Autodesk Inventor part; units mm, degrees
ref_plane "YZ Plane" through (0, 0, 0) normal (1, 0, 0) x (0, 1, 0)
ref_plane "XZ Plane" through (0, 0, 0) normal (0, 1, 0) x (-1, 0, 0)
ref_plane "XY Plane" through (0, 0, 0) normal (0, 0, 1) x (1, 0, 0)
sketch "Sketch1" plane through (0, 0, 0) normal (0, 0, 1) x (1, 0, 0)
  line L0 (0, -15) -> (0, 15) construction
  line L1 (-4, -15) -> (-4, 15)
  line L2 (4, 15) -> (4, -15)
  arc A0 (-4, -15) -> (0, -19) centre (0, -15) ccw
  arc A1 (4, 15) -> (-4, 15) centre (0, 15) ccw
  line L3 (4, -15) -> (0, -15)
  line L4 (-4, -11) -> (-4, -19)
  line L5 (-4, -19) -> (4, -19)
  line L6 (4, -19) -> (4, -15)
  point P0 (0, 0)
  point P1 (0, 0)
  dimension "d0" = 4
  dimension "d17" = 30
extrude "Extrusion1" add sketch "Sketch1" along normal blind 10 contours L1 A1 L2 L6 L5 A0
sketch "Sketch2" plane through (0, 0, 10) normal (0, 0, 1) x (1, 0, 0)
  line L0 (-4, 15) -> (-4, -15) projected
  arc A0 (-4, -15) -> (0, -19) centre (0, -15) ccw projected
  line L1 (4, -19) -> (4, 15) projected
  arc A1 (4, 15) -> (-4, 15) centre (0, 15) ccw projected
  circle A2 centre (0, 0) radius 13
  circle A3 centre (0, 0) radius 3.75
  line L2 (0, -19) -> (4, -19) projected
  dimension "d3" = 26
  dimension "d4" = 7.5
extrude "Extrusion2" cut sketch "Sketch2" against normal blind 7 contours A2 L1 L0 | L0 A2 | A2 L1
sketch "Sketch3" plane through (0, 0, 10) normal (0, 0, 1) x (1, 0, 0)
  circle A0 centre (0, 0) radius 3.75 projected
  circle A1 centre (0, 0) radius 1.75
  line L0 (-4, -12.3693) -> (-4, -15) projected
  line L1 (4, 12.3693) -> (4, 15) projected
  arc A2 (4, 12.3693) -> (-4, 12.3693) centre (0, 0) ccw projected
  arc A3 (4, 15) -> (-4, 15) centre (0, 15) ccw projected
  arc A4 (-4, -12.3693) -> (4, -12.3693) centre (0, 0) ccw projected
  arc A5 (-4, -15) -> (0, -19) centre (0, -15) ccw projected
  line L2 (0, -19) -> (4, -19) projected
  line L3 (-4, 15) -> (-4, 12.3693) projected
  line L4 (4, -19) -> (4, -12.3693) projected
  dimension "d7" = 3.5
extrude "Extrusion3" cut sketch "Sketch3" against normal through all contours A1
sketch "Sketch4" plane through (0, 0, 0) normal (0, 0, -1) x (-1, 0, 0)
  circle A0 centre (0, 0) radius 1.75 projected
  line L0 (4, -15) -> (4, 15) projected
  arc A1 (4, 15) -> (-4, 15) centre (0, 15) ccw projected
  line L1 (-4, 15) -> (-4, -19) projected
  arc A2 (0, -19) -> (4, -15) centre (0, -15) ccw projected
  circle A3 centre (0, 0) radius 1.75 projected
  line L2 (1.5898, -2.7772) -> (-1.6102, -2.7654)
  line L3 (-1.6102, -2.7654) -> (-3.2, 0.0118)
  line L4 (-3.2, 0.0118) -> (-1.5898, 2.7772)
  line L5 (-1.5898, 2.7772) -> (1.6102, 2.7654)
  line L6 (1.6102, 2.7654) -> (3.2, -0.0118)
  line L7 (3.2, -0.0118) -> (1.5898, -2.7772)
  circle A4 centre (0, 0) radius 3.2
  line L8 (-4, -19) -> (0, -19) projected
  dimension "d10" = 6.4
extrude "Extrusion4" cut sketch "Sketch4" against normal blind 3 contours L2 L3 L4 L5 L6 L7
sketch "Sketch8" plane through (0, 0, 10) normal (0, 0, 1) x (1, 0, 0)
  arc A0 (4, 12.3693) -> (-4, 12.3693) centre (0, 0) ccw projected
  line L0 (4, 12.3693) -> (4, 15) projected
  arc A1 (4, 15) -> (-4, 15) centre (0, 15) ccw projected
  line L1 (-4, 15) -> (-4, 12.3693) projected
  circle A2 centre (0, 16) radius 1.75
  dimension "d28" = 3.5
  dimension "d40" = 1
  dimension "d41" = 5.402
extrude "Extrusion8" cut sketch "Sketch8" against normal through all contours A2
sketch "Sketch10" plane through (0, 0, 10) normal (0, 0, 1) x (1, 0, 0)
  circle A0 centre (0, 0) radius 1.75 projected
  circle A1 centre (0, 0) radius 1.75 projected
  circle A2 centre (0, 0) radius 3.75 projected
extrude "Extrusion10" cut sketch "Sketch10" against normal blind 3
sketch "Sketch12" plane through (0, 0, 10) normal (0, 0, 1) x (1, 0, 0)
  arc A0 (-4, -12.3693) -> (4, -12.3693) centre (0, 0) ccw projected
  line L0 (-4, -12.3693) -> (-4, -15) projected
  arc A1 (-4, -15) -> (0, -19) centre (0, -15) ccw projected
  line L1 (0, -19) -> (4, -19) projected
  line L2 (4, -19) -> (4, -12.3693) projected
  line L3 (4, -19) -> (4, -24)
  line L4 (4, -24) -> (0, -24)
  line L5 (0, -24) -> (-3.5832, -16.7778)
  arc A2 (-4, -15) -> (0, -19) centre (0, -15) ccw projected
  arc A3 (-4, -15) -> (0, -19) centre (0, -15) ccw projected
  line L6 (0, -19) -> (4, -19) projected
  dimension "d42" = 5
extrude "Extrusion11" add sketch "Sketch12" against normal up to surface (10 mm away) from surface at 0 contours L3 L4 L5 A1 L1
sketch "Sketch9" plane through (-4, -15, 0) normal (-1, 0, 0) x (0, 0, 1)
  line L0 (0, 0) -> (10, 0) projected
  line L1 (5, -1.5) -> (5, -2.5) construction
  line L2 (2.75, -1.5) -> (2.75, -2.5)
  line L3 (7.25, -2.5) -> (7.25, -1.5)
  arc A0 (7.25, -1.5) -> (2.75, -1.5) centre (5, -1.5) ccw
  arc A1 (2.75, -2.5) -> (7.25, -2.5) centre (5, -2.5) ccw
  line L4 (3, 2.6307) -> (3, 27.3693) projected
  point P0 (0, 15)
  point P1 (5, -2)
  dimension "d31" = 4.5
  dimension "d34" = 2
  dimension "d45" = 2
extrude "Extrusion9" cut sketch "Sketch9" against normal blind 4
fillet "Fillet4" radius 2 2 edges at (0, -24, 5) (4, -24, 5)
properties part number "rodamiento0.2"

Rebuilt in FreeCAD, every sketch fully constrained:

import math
import FreeCAD as App
import Part
import Sketcher
Q = App.Units.Quantity


def edges_at(feature, points):
    """Names of the edges that pass closest to the given points."""
    edges = feature.Shape.Edges
    near = lambda p: min(range(len(edges)), key=lambda i: edges[i].distToShape(Part.Vertex(*p))[0])
    return sorted({f"Edge{near(p) + 1}" for p in points})


def add_polygon(sketch, points):
    """Adds a closed chain of lines whose ends are joined by coincident constraints."""
    first, n = sketch.GeometryCount, len(points)
    for a, b in zip(points, points[1:] + points[:1]):
        sketch.addGeometry(Part.LineSegment(App.Vector(*a, 0), App.Vector(*b, 0)), False)
    for i in range(n):
        sketch.addConstraint(Sketcher.Constraint("Coincident", first + i, 2, first + (i + 1) % n, 1))

doc = App.newDocument("Part")
body = doc.addObject("PartDesign::Body", "Body")

# Sketch on XY plane
sketch1 = doc.addObject("Sketcher::SketchObject", "Sketch")
body.addObject(sketch1)
sketch1.AttachmentSupport = (doc.XY_Plane, [""])
sketch1.MapMode = "FlatFace"
sketch1.addGeometry(Part.LineSegment(App.Vector(-4, 15, 0), App.Vector(-4, -15, 0)), False)
sketch1.addGeometry(Part.ArcOfCircle(Part.Circle(App.Vector(0, -15, 0), App.Vector(0, 0, 1), 4), math.radians(180), math.radians(270)), False)
sketch1.addGeometry(Part.LineSegment(App.Vector(0, -19, 0), App.Vector(4, -19, 0)), False)
sketch1.addGeometry(Part.LineSegment(App.Vector(4, -19, 0), App.Vector(4, 15, 0)), False)
sketch1.addGeometry(Part.ArcOfCircle(Part.Circle(App.Vector(0, 15, 0), App.Vector(0, 0, 1), 4), math.radians(0), math.radians(180)), False)
sketch1.addConstraint(Sketcher.Constraint("Tangent", 0, 2, 1, 1))
sketch1.addConstraint(Sketcher.Constraint("Tangent", 1, 2, 2, 1))
sketch1.addConstraint(Sketcher.Constraint("Coincident", 2, 2, 3, 1))
sketch1.addConstraint(Sketcher.Constraint("Tangent", 3, 2, 4, 1))
sketch1.addConstraint(Sketcher.Constraint("Tangent", 4, 2, 0, 1))
sketch1.addConstraint(Sketcher.Constraint("Vertical", 0))
sketch1.addConstraint(Sketcher.Constraint("Horizontal", 2))
sketch1.addConstraint(Sketcher.Constraint("Vertical", 3))
sketch1.addConstraint(Sketcher.Constraint("Equal", 1, 4))
sketch1.addConstraint(Sketcher.Constraint("Symmetric", 1, 3, 4, 3, -1, 1))
sketch1.addConstraint(Sketcher.Constraint("Radius", 1, 4.0))
sketch1.addConstraint(Sketcher.Constraint("DistanceY", 0, 2, 0, 1, 30.0))
pad1 = doc.addObject("PartDesign::Pad", "Pad")
body.addObject(pad1)
pad1.Profile = sketch1
pad1.Length = 10

# Sketch on XY plane
sketch2 = doc.addObject("Sketcher::SketchObject", "Sketch001")
body.addObject(sketch2)
sketch2.AttachmentSupport = (doc.XY_Plane, [""])
sketch2.MapMode = "FlatFace"
sketch2.AttachmentOffset = App.Placement(App.Vector(0, 0, 10), App.Rotation())
sketch2.addGeometry(Part.Circle(App.Vector(0, 0, 0), App.Vector(0, 0, 1), 13), False)
sketch2.addGeometry(Part.Circle(App.Vector(0, 0, 0), App.Vector(0, 0, 1), 3.75), False)
sketch2.addConstraint(Sketcher.Constraint("Coincident", 0, 3, -1, 1))
sketch2.addConstraint(Sketcher.Constraint("Coincident", 1, 3, -1, 1))
sketch2.addConstraint(Sketcher.Constraint("Diameter", 0, 26.0))
sketch2.addConstraint(Sketcher.Constraint("Diameter", 1, 7.5))
pocket1 = doc.addObject("PartDesign::Pocket", "Pocket")
body.addObject(pocket1)
pocket1.Profile = sketch2
pocket1.Length = 7

# Sketch on XY plane
sketch3 = doc.addObject("Sketcher::SketchObject", "Sketch002")
body.addObject(sketch3)
sketch3.AttachmentSupport = (doc.XY_Plane, [""])
sketch3.MapMode = "FlatFace"
sketch3.AttachmentOffset = App.Placement(App.Vector(0, 0, 10), App.Rotation())
sketch3.addGeometry(Part.Circle(App.Vector(0, 0, 0), App.Vector(0, 0, 1), 1.75), False)
sketch3.addConstraint(Sketcher.Constraint("Coincident", 0, 3, -1, 1))
sketch3.addConstraint(Sketcher.Constraint("Diameter", 0, 3.5))
pocket2 = doc.addObject("PartDesign::Pocket", "Pocket001")
body.addObject(pocket2)
pocket2.Profile = sketch3
pocket2.Type = "ThroughAll"

# Sketch on XY plane
sketch4 = doc.addObject("Sketcher::SketchObject", "Sketch003")
body.addObject(sketch4)
sketch4.AttachmentSupport = (doc.XY_Plane, [""])
sketch4.MapMode = "FlatFace"
add_polygon(sketch4, [(1.6102, -2.7654), (-1.5898, -2.7772), (-3.2, -0.0118), (-1.6102, 2.7654), (1.5898, 2.7772), (3.2, 0.0118)])  # lines 0-5
sketch4.addGeometry(Part.Circle(App.Vector(0, 0, 0), App.Vector(0, 0, 1), 1.75), False)  # 6
sketch4.addConstraint(Sketcher.Constraint("Coincident", 6, 3, -1, 1))
sketch4.addConstraint(Sketcher.Constraint("Symmetric", 0, 2, 3, 2, -1, 1))
sketch4.addConstraint(Sketcher.Constraint("Symmetric", 1, 2, 4, 2, -1, 1))
sketch4.addConstraint(Sketcher.Constraint("Symmetric", 2, 2, 5, 2, -1, 1))
sketch4.addConstraint(Sketcher.Constraint("Equal", 0, 1))
sketch4.addConstraint(Sketcher.Constraint("Equal", 1, 2))
sketch4.addConstraint(Sketcher.Constraint("Diameter", 6, 3.5))
sketch4.addConstraint(Sketcher.Constraint("DistanceX", 1, 2, 4, 2, 6.4))
sketch4.addConstraint(Sketcher.Constraint("Distance", 0, 3.2))
sketch4.addConstraint(Sketcher.Constraint("Angle", 1, Q("120.2108 deg")))
sketch4.addConstraint(Sketcher.Constraint("DistanceY", 1, 2, 3, 2, 2.789))
pocket3 = doc.addObject("PartDesign::Pocket", "Pocket002")
body.addObject(pocket3)
pocket3.Profile = sketch4
pocket3.Length = 3
pocket3.Reversed = True

# Sketch on XY plane
sketch5 = doc.addObject("Sketcher::SketchObject", "Sketch004")
body.addObject(sketch5)
sketch5.AttachmentSupport = (doc.XY_Plane, [""])
sketch5.MapMode = "FlatFace"
sketch5.AttachmentOffset = App.Placement(App.Vector(0, 0, 10), App.Rotation())
sketch5.addGeometry(Part.Circle(App.Vector(0, 16, 0), App.Vector(0, 0, 1), 1.75), False)
sketch5.addConstraint(Sketcher.Constraint("PointOnObject", 0, 3, -2))
sketch5.addConstraint(Sketcher.Constraint("Diameter", 0, 3.5))
sketch5.addConstraint(Sketcher.Constraint("DistanceY", -1, 1, 0, 3, 16.0))
pocket4 = doc.addObject("PartDesign::Pocket", "Pocket003")
body.addObject(pocket4)
pocket4.Profile = sketch5
pocket4.Type = "ThroughAll"

# Sketch on XY plane
sketch6 = doc.addObject("Sketcher::SketchObject", "Sketch005")
body.addObject(sketch6)
sketch6.AttachmentSupport = (doc.XY_Plane, [""])
sketch6.MapMode = "FlatFace"
sketch6.AttachmentOffset = App.Placement(App.Vector(0, 0, 10), App.Rotation())
sketch6.addGeometry(Part.Circle(App.Vector(0, 0, 0), App.Vector(0, 0, 1), 3.75), False)
sketch6.addGeometry(Part.Circle(App.Vector(0, 0, 0), App.Vector(0, 0, 1), 1.75), False)
sketch6.addConstraint(Sketcher.Constraint("Coincident", 0, 3, -1, 1))
sketch6.addConstraint(Sketcher.Constraint("Coincident", 1, 3, -1, 1))
sketch6.addConstraint(Sketcher.Constraint("Diameter", 0, 7.5))
sketch6.addConstraint(Sketcher.Constraint("Diameter", 1, 3.5))
pocket5 = doc.addObject("PartDesign::Pocket", "Pocket004")
body.addObject(pocket5)
pocket5.Profile = sketch6
pocket5.Length = 3

# Sketch on XY plane
sketch7 = doc.addObject("Sketcher::SketchObject", "Sketch006")
body.addObject(sketch7)
sketch7.AttachmentSupport = (doc.XY_Plane, [""])
sketch7.MapMode = "FlatFace"
sketch7.AttachmentOffset = App.Placement(App.Vector(0, 0, 10), App.Rotation())
sketch7.addGeometry(Part.LineSegment(App.Vector(4, -24, 0), App.Vector(4, -19, 0)), False)
sketch7.addGeometry(Part.LineSegment(App.Vector(4, -19, 0), App.Vector(0, -19, 0)), False)
sketch7.addGeometry(Part.ArcOfCircle(Part.Circle(App.Vector(0, -15, 0), App.Vector(0, 0, 1), 4), math.radians(-153.611751), math.radians(-90)), False)
sketch7.addGeometry(Part.LineSegment(App.Vector(-3.5832, -16.7778, 0), App.Vector(0, -24, 0)), False)
sketch7.addGeometry(Part.LineSegment(App.Vector(0, -24, 0), App.Vector(4, -24, 0)), False)
sketch7.addConstraint(Sketcher.Constraint("Coincident", 0, 2, 1, 1))
sketch7.addConstraint(Sketcher.Constraint("Tangent", 1, 2, 2, 2))
sketch7.addConstraint(Sketcher.Constraint("Tangent", 2, 1, 3, 1))
sketch7.addConstraint(Sketcher.Constraint("Coincident", 3, 2, 4, 1))
sketch7.addConstraint(Sketcher.Constraint("Coincident", 4, 2, 0, 1))
sketch7.addConstraint(Sketcher.Constraint("Vertical", 0))
sketch7.addConstraint(Sketcher.Constraint("Horizontal", 1))
sketch7.addConstraint(Sketcher.Constraint("Horizontal", 4))
sketch7.addConstraint(Sketcher.Constraint("PointOnObject", 2, 3, -2))
sketch7.addConstraint(Sketcher.Constraint("PointOnObject", 3, 2, -2))
sketch7.addConstraint(Sketcher.Constraint("DistanceY", 0, 1, 0, 2, 5.0))
sketch7.addConstraint(Sketcher.Constraint("Radius", 2, 4.0))
sketch7.addConstraint(Sketcher.Constraint("DistanceX", 1, 2, 1, 1, 4.0))
sketch7.addConstraint(Sketcher.Constraint("DistanceY", 2, 3, -1, 1, 15.0))
pad2 = doc.addObject("PartDesign::Pad", "Pad001")
body.addObject(pad2)
pad2.Profile = sketch7
pad2.Length = 10
pad2.Reversed = True

# Sketch on YZ plane
sketch8 = doc.addObject("Sketcher::SketchObject", "Sketch007")
body.addObject(sketch8)
sketch8.AttachmentSupport = (doc.YZ_Plane, [""])
sketch8.MapMode = "FlatFace"
sketch8.AttachmentOffset = App.Placement(App.Vector(0, 0, -4), App.Rotation())
sketch8.addGeometry(Part.LineSegment(App.Vector(-16.5, 2.75, 0), App.Vector(-17.5, 2.75, 0)), False)
sketch8.addGeometry(Part.ArcOfCircle(Part.Circle(App.Vector(-17.5, 5, 0), App.Vector(0, 0, 1), 2.25), math.radians(90), math.radians(270)), False)
sketch8.addGeometry(Part.LineSegment(App.Vector(-17.5, 7.25, 0), App.Vector(-16.5, 7.25, 0)), False)
sketch8.addGeometry(Part.ArcOfCircle(Part.Circle(App.Vector(-16.5, 5, 0), App.Vector(0, 0, 1), 2.25), math.radians(-90), math.radians(90)), False)
sketch8.addConstraint(Sketcher.Constraint("Tangent", 0, 2, 1, 2))
sketch8.addConstraint(Sketcher.Constraint("Tangent", 1, 1, 2, 1))
sketch8.addConstraint(Sketcher.Constraint("Tangent", 2, 2, 3, 2))
sketch8.addConstraint(Sketcher.Constraint("Tangent", 3, 1, 0, 1))
sketch8.addConstraint(Sketcher.Constraint("Horizontal", 0))
sketch8.addConstraint(Sketcher.Constraint("Horizontal", 2))
sketch8.addConstraint(Sketcher.Constraint("Radius", 1, 2.25))
sketch8.addConstraint(Sketcher.Constraint("DistanceX", 0, 2, 0, 1, 1.0))
sketch8.addConstraint(Sketcher.Constraint("DistanceY", -1, 1, 1, 3, 5.0))
sketch8.addConstraint(Sketcher.Constraint("DistanceX", 1, 3, -1, 1, 17.5))
pocket6 = doc.addObject("PartDesign::Pocket", "Pocket005")
body.addObject(pocket6)
pocket6.Profile = sketch8
pocket6.Length = 4
pocket6.Reversed = True
doc.recompute()

fillet = doc.addObject("PartDesign::Fillet", "Fillet")
body.addObject(fillet)
fillet.Base = (pocket6, edges_at(pocket6, [(0, -24, 5), (4, -24, 5)]))
fillet.Radius = 2

doc.recompute()
